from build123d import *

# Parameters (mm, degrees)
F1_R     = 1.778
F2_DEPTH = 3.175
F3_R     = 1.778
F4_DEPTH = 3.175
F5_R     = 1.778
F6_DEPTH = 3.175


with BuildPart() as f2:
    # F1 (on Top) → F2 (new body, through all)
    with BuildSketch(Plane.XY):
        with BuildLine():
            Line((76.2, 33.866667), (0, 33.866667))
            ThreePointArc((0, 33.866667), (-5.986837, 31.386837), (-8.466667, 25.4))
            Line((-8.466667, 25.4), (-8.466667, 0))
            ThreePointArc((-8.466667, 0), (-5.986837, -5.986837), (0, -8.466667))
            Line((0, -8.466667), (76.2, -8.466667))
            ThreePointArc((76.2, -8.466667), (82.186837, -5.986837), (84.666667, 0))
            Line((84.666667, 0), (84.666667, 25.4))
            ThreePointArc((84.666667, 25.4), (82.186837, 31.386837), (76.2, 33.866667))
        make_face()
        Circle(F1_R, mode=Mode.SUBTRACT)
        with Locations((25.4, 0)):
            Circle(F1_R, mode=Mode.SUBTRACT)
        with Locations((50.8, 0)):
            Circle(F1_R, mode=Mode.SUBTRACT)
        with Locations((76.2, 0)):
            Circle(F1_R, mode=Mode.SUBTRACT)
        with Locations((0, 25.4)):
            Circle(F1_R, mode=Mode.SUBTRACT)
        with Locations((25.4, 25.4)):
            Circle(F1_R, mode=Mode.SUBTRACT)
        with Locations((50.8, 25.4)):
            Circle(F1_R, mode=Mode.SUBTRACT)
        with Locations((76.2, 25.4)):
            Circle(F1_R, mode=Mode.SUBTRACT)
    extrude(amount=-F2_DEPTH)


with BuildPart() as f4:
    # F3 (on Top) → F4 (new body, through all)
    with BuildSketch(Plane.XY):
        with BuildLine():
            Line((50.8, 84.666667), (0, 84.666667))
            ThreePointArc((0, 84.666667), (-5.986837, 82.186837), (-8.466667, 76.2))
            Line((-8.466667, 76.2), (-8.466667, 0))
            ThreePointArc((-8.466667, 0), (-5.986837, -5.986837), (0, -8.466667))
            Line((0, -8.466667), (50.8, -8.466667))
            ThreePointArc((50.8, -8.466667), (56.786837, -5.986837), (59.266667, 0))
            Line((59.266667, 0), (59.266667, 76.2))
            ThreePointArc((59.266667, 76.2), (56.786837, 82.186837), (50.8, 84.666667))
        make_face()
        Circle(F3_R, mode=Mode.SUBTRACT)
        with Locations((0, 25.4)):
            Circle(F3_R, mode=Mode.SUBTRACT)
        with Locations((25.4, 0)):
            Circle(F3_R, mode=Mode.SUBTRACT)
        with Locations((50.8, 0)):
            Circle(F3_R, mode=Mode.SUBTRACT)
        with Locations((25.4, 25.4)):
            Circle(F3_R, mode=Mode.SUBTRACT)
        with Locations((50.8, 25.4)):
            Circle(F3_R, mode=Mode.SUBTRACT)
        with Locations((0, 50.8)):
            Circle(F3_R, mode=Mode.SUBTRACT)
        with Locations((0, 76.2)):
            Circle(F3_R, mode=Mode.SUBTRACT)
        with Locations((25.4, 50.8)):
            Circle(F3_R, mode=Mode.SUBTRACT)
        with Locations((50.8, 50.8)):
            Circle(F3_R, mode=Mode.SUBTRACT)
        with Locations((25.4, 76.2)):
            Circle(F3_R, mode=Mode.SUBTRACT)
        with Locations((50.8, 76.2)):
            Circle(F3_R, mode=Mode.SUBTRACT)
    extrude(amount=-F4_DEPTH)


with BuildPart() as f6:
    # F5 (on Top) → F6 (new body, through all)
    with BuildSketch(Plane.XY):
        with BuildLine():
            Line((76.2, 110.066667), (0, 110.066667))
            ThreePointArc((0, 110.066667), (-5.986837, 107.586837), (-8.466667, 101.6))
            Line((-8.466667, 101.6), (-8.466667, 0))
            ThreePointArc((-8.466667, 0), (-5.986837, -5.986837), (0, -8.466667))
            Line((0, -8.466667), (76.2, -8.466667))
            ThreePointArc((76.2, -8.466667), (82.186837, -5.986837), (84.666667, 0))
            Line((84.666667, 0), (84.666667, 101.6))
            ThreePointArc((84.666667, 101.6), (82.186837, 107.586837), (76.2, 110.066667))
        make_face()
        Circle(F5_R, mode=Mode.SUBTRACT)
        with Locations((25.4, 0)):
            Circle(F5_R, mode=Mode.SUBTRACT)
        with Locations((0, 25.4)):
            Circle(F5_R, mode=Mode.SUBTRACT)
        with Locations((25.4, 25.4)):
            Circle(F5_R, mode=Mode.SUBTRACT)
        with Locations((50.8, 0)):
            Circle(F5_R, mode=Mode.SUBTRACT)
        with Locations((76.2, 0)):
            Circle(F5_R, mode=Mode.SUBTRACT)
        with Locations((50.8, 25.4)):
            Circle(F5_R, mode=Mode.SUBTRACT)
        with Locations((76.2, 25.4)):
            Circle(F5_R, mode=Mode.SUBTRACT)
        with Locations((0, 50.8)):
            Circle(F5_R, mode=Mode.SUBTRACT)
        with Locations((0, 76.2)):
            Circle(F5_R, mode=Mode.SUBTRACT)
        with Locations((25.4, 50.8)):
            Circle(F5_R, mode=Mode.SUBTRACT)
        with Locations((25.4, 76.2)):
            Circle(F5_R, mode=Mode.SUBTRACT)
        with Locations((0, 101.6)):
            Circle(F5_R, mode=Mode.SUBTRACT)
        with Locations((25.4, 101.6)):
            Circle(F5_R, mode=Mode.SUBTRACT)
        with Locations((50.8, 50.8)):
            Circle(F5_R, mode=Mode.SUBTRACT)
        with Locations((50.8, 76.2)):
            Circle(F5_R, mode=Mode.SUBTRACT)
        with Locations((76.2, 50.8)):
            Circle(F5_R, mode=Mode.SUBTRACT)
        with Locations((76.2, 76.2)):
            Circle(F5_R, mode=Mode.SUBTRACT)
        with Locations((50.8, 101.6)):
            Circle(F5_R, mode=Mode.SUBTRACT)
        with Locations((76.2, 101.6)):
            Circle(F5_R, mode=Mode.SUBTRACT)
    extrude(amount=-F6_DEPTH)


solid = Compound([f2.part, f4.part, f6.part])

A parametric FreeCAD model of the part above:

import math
import FreeCAD as App
import Part
import Sketcher

V = App.Vector
Q = App.Units.Quantity

doc = App.newDocument("Part")
body = doc.addObject("PartDesign::Body", "Body")

# Sketch on XY plane
sketch1 = body.newObject("Sketcher::SketchObject", "Sketch")
sketch1.AttachmentSupport = (doc.getObject("XY_Plane"), [""])
sketch1.MapMode = "FlatFace"
sketch1.addGeometry([
    Part.LineSegment(V(76.2, 33.9, 0), V(0, 33.9, 0)),  # 0
    Part.ArcOfCircle(Part.Circle(V(0, 25.4, 0), V(0, 0, 1), 8.5), math.radians(90), math.radians(180)),  # 1
    Part.LineSegment(V(-8.5, 25.4, 0), V(-8.5, 0, 0)),  # 2
    Part.ArcOfCircle(Part.Circle(V(0, 0, 0), V(0, 0, 1), 8.5), math.radians(-180), math.radians(-90)),  # 3
    Part.LineSegment(V(0, -8.5, 0), V(76.2, -8.5, 0)),  # 4
    Part.ArcOfCircle(Part.Circle(V(76.2, 0, 0), V(0, 0, 1), 8.5), math.radians(-90), math.radians(0)),  # 5
    Part.LineSegment(V(84.7, 0, 0), V(84.7, 25.4, 0)),  # 6
    Part.ArcOfCircle(Part.Circle(V(76.2, 25.4, 0), V(0, 0, 1), 8.5), math.radians(0), math.radians(90)),  # 7
    Part.Circle(V(0, 0, 0), V(0, 0, 1), 1.8),  # 8
    Part.Circle(V(25.4, 0, 0), V(0, 0, 1), 1.8),  # 9
    Part.Circle(V(50.8, 0, 0), V(0, 0, 1), 1.8),  # 10
    Part.Circle(V(76.2, 0, 0), V(0, 0, 1), 1.8),  # 11
    Part.Circle(V(0, 25.4, 0), V(0, 0, 1), 1.8),  # 12
    Part.Circle(V(25.4, 25.4, 0), V(0, 0, 1), 1.8),  # 13
    Part.Circle(V(50.8, 25.4, 0), V(0, 0, 1), 1.8),  # 14
    Part.Circle(V(76.2, 25.4, 0), V(0, 0, 1), 1.8),  # 15
], False)
sketch1.addConstraint([
    Sketcher.Constraint("Tangent", 0, 2, 1, 1),
    Sketcher.Constraint("Tangent", 1, 2, 2, 1),
    Sketcher.Constraint("Tangent", 2, 2, 3, 1),
    Sketcher.Constraint("Tangent", 3, 2, 4, 1),
    Sketcher.Constraint("Tangent", 4, 2, 5, 1),
    Sketcher.Constraint("Tangent", 5, 2, 6, 1),
    Sketcher.Constraint("Tangent", 6, 2, 7, 1),
    Sketcher.Constraint("Tangent", 7, 2, 0, 1),
    Sketcher.Constraint("Horizontal", 0),
    Sketcher.Constraint("Vertical", 2),
    Sketcher.Constraint("Horizontal", 4),
    Sketcher.Constraint("Vertical", 6),
    Sketcher.Constraint("Coincident", 3, 3, -1, 1),
    Sketcher.Constraint("Coincident", 8, 3, -1, 1),
    Sketcher.Constraint("Coincident", 11, 3, 5, 3),
    Sketcher.Constraint("Coincident", 12, 3, 1, 3),
    Sketcher.Constraint("Coincident", 15, 3, 7, 3),
    Sketcher.Constraint("Equal", 1, 3),
    Sketcher.Constraint("Equal", 3, 5),
    Sketcher.Constraint("Equal", 5, 7),
    Sketcher.Constraint("Equal", 8, 9),
    Sketcher.Constraint("Equal", 9, 10),
    Sketcher.Constraint("Equal", 10, 11),
    Sketcher.Constraint("Equal", 11, 12),
    Sketcher.Constraint("Equal", 12, 13),
    Sketcher.Constraint("Equal", 13, 14),
    Sketcher.Constraint("Equal", 14, 15),
    Sketcher.Constraint("PointOnObject", 9, 3, -1),
    Sketcher.Constraint("PointOnObject", 10, 3, -1),
    Sketcher.Constraint("Horizontal", 12, 3, 13, 3),
    Sketcher.Constraint("Horizontal", 13, 3, 14, 3),
    Sketcher.Constraint("Vertical", 9, 3, 13, 3),
    Sketcher.Constraint("Vertical", 10, 3, 14, 3),
    Sketcher.Constraint("Diameter", 8, Q("0.14 in")),
    Sketcher.Constraint("DistanceX", 0, 2, 0, 1, Q("3 in")),
    Sketcher.Constraint("DistanceY", 2, 2, 2, 1, Q("1 in")),
    Sketcher.Constraint("DistanceX", -1, 1, 9, 3, Q("1 in")),
    Sketcher.Constraint("DistanceX", -1, 1, 10, 3, Q("2 in")),
    Sketcher.Constraint("Radius", 1, 8.466669),
])
pad1 = body.newObject("PartDesign::Pad", "Pad")
pad1.Profile = sketch1
pad1.Length = Q("0.125 in")
pad1.Reversed = True
body2 = doc.addObject("PartDesign::Body", "Body001")

# Sketch on XY plane
sketch2 = body2.newObject("Sketcher::SketchObject", "Sketch001")
sketch2.AttachmentSupport = (doc.getObject("XY_Plane001"), [""])
sketch2.MapMode = "FlatFace"
sketch2.addGeometry([
    Part.LineSegment(V(50.8, 84.7, 0), V(0, 84.7, 0)),  # 0
    Part.ArcOfCircle(Part.Circle(V(0, 76.2, 0), V(0, 0, 1), 8.5), math.radians(90), math.radians(180)),  # 1
    Part.LineSegment(V(-8.5, 76.2, 0), V(-8.5, 0, 0)),  # 2
    Part.ArcOfCircle(Part.Circle(V(0, 0, 0), V(0, 0, 1), 8.5), math.radians(-180), math.radians(-90)),  # 3
    Part.LineSegment(V(0, -8.5, 0), V(50.8, -8.5, 0)),  # 4
    Part.ArcOfCircle(Part.Circle(V(50.8, 0, 0), V(0, 0, 1), 8.5), math.radians(-90), math.radians(0)),  # 5
    Part.LineSegment(V(59.3, 0, 0), V(59.3, 76.2, 0)),  # 6
    Part.ArcOfCircle(Part.Circle(V(50.8, 76.2, 0), V(0, 0, 1), 8.5), math.radians(0), math.radians(90)),  # 7
    Part.Circle(V(0, 0, 0), V(0, 0, 1), 1.8),  # 8
    Part.Circle(V(25.4, 0, 0), V(0, 0, 1), 1.8),  # 9
    Part.Circle(V(0, 25.4, 0), V(0, 0, 1), 1.8),  # 10
    Part.Circle(V(25.4, 25.4, 0), V(0, 0, 1), 1.8),  # 11
    Part.Circle(V(50.8, 0, 0), V(0, 0, 1), 1.8),  # 12
    Part.Circle(V(50.8, 25.4, 0), V(0, 0, 1), 1.8),  # 13
    Part.Circle(V(0, 50.8, 0), V(0, 0, 1), 1.8),  # 14
    Part.Circle(V(25.4, 50.8, 0), V(0, 0, 1), 1.8),  # 15
    Part.Circle(V(0, 76.2, 0), V(0, 0, 1), 1.8),  # 16
    Part.Circle(V(25.4, 76.2, 0), V(0, 0, 1), 1.8),  # 17
    Part.Circle(V(50.8, 50.8, 0), V(0, 0, 1), 1.8),  # 18
    Part.Circle(V(50.8, 76.2, 0), V(0, 0, 1), 1.8),  # 19
], False)
sketch2.addConstraint([
    Sketcher.Constraint("Tangent", 0, 2, 1, 1),
    Sketcher.Constraint("Tangent", 1, 2, 2, 1),
    Sketcher.Constraint("Tangent", 2, 2, 3, 1),
    Sketcher.Constraint("Tangent", 3, 2, 4, 1),
    Sketcher.Constraint("Tangent", 4, 2, 5, 1),
    Sketcher.Constraint("Tangent", 5, 2, 6, 1),
    Sketcher.Constraint("Tangent", 6, 2, 7, 1),
    Sketcher.Constraint("Tangent", 7, 2, 0, 1),
    Sketcher.Constraint("Horizontal", 0),
    Sketcher.Constraint("Vertical", 2),
    Sketcher.Constraint("Horizontal", 4),
    Sketcher.Constraint("Vertical", 6),
    Sketcher.Constraint("Coincident", 3, 3, -1, 1),
    Sketcher.Constraint("Coincident", 8, 3, -1, 1),
    Sketcher.Constraint("Coincident", 12, 3, 5, 3),
    Sketcher.Constraint("Coincident", 16, 3, 1, 3),
    Sketcher.Constraint("Coincident", 19, 3, 7, 3),
    Sketcher.Constraint("Equal", 1, 3),
    Sketcher.Constraint("Equal", 3, 5),
    Sketcher.Constraint("Equal", 5, 7),
    Sketcher.Constraint("Equal", 8, 9),
    Sketcher.Constraint("Equal", 9, 10),
    Sketcher.Constraint("Equal", 10, 11),
    Sketcher.Constraint("Equal", 11, 12),
    Sketcher.Constraint("Equal", 12, 13),
    Sketcher.Constraint("Equal", 13, 14),
    Sketcher.Constraint("Equal", 14, 15),
    Sketcher.Constraint("Equal", 15, 16),
    Sketcher.Constraint("Equal", 16, 17),
    Sketcher.Constraint("Equal", 17, 18),
    Sketcher.Constraint("Equal", 18, 19),
    Sketcher.Constraint("PointOnObject", 9, 3, -1),
    Sketcher.Constraint("PointOnObject", 10, 3, -2),
    Sketcher.Constraint("PointOnObject", 14, 3, -2),
    Sketcher.Constraint("Horizontal", 10, 3, 11, 3),
    Sketcher.Constraint("Horizontal", 11, 3, 13, 3),
    Sketcher.Constraint("Horizontal", 14, 3, 15, 3),
    Sketcher.Constraint("Horizontal", 16, 3, 17, 3),
    Sketcher.Constraint("Horizontal", 15, 3, 18, 3),
    Sketcher.Constraint("Vertical", 9, 3, 11, 3),
    Sketcher.Constraint("Vertical", 12, 3, 13, 3),
    Sketcher.Constraint("Vertical", 11, 3, 15, 3),
    Sketcher.Constraint("Vertical", 15, 3, 17, 3),
    Sketcher.Constraint("Vertical", 13, 3, 18, 3),
    Sketcher.Constraint("Diameter", 8, Q("0.14 in")),
    Sketcher.Constraint("DistanceX", 0, 2, 0, 1, Q("2 in")),
    Sketcher.Constraint("DistanceY", 2, 2, 2, 1, Q("3 in")),
    Sketcher.Constraint("DistanceX", -1, 1, 9, 3, Q("1 in")),
    Sketcher.Constraint("DistanceY", -1, 1, 10, 3, Q("1 in")),
    Sketcher.Constraint("DistanceY", -1, 1, 14, 3, Q("2 in")),
    Sketcher.Constraint("Radius", 1, 8.466669),
])
pad2 = body2.newObject("PartDesign::Pad", "Pad001")
pad2.Profile = sketch2
pad2.Length = Q("0.125 in")
pad2.Reversed = True
body3 = doc.addObject("PartDesign::Body", "Body002")

# Sketch on XY plane
sketch3 = body3.newObject("Sketcher::SketchObject", "Sketch002")
sketch3.AttachmentSupport = (doc.getObject("XY_Plane002"), [""])
sketch3.MapMode = "FlatFace"
sketch3.addGeometry([
    Part.LineSegment(V(76.2, 110.1, 0), V(0, 110.1, 0)),  # 0
    Part.ArcOfCircle(Part.Circle(V(0, 101.6, 0), V(0, 0, 1), 8.5), math.radians(90), math.radians(180)),  # 1
    Part.LineSegment(V(-8.5, 101.6, 0), V(-8.5, 0, 0)),  # 2
    Part.ArcOfCircle(Part.Circle(V(0, 0, 0), V(0, 0, 1), 8.5), math.radians(-180), math.radians(-90)),  # 3
    Part.LineSegment(V(0, -8.5, 0), V(76.2, -8.5, 0)),  # 4
    Part.ArcOfCircle(Part.Circle(V(76.2, 0, 0), V(0, 0, 1), 8.5), math.radians(-90), math.radians(0)),  # 5
    Part.LineSegment(V(84.7, 0, 0), V(84.7, 101.6, 0)),  # 6
    Part.ArcOfCircle(Part.Circle(V(76.2, 101.6, 0), V(0, 0, 1), 8.5), math.radians(0), math.radians(90)),  # 7
    Part.Circle(V(0, 0, 0), V(0, 0, 1), 1.8),  # 8
    Part.Circle(V(25.4, 0, 0), V(0, 0, 1), 1.8),  # 9
    Part.Circle(V(0, 25.4, 0), V(0, 0, 1), 1.8),  # 10
    Part.Circle(V(25.4, 25.4, 0), V(0, 0, 1), 1.8),  # 11
    Part.Circle(V(50.8, 0, 0), V(0, 0, 1), 1.8),  # 12
    Part.Circle(V(76.2, 0, 0), V(0, 0, 1), 1.8),  # 13
    Part.Circle(V(50.8, 25.4, 0), V(0, 0, 1), 1.8),  # 14
    Part.Circle(V(76.2, 25.4, 0), V(0, 0, 1), 1.8),  # 15
    Part.Circle(V(0, 50.8, 0), V(0, 0, 1), 1.8),  # 16
    Part.Circle(V(0, 76.2, 0), V(0, 0, 1), 1.8),  # 17
    Part.Circle(V(25.4, 50.8, 0), V(0, 0, 1), 1.8),  # 18
    Part.Circle(V(25.4, 76.2, 0), V(0, 0, 1), 1.8),  # 19
    Part.Circle(V(0, 101.6, 0), V(0, 0, 1), 1.8),  # 20
    Part.Circle(V(25.4, 101.6, 0), V(0, 0, 1), 1.8),  # 21
    Part.Circle(V(50.8, 50.8, 0), V(0, 0, 1), 1.8),  # 22
    Part.Circle(V(50.8, 76.2, 0), V(0, 0, 1), 1.8),  # 23
    Part.Circle(V(76.2, 50.8, 0), V(0, 0, 1), 1.8),  # 24
    Part.Circle(V(76.2, 76.2, 0), V(0, 0, 1), 1.8),  # 25
    Part.Circle(V(50.8, 101.6, 0), V(0, 0, 1), 1.8),  # 26
    Part.Circle(V(76.2, 101.6, 0), V(0, 0, 1), 1.8),  # 27
], False)
sketch3.addConstraint([
    Sketcher.Constraint("Tangent", 0, 2, 1, 1),
    Sketcher.Constraint("Tangent", 1, 2, 2, 1),
    Sketcher.Constraint("Tangent", 2, 2, 3, 1),
    Sketcher.Constraint("Tangent", 3, 2, 4, 1),
    Sketcher.Constraint("Tangent", 4, 2, 5, 1),
    Sketcher.Constraint("Tangent", 5, 2, 6, 1),
    Sketcher.Constraint("Tangent", 6, 2, 7, 1),
    Sketcher.Constraint("Tangent", 7, 2, 0, 1),
    Sketcher.Constraint("Horizontal", 0),
    Sketcher.Constraint("Vertical", 2),
    Sketcher.Constraint("Horizontal", 4),
    Sketcher.Constraint("Vertical", 6),
    Sketcher.Constraint("Coincident", 3, 3, -1, 1),
    Sketcher.Constraint("Coincident", 8, 3, -1, 1),
    Sketcher.Constraint("Coincident", 13, 3, 5, 3),
    Sketcher.Constraint("Coincident", 20, 3, 1, 3),
    Sketcher.Constraint("Coincident", 27, 3, 7, 3),
    Sketcher.Constraint("Equal", 1, 3),
    Sketcher.Constraint("Equal", 3, 5),
    Sketcher.Constraint("Equal", 5, 7),
    Sketcher.Constraint("Equal", 8, 9),
    Sketcher.Constraint("Equal", 9, 10),
    Sketcher.Constraint("Equal", 10, 11),
    Sketcher.Constraint("Equal", 11, 12),
    Sketcher.Constraint("Equal", 12, 13),
    Sketcher.Constraint("Equal", 13, 14),
    Sketcher.Constraint("Equal", 14, 15),
    Sketcher.Constraint("Equal", 15, 16),
    Sketcher.Constraint("Equal", 16, 17),
    Sketcher.Constraint("Equal", 17, 18),
    Sketcher.Constraint("Equal", 18, 19),
    Sketcher.Constraint("Equal", 19, 20),
    Sketcher.Constraint("Equal", 20, 21),
    Sketcher.Constraint("Equal", 21, 22),
    Sketcher.Constraint("Equal", 22, 23),
    Sketcher.Constraint("Equal", 23, 24),
    Sketcher.Constraint("Equal", 24, 25),
    Sketcher.Constraint("Equal", 25, 26),
    Sketcher.Constraint("Equal", 26, 27),
    Sketcher.Constraint("PointOnObject", 9, 3, -1),
    Sketcher.Constraint("PointOnObject", 10, 3, -2),
    Sketcher.Constraint("PointOnObject", 12, 3, -1),
    Sketcher.Constraint("PointOnObject", 16, 3, -2),
    Sketcher.Constraint("PointOnObject", 17, 3, -2),
    Sketcher.Constraint("Horizontal", 10, 3, 11, 3),
    Sketcher.Constraint("Horizontal", 11, 3, 14, 3),
    Sketcher.Constraint("Horizontal", 14, 3, 15, 3),
    Sketcher.Constraint("Horizontal", 16, 3, 18, 3),
    Sketcher.Constraint("Horizontal", 17, 3, 19, 3),
    Sketcher.Constraint("Horizontal", 20, 3, 21, 3),
    Sketcher.Constraint("Horizontal", 18, 3, 22, 3),
    Sketcher.Constraint("Horizontal", 19, 3, 23, 3),
    Sketcher.Constraint("Horizontal", 22, 3, 24, 3),
    Sketcher.Constraint("Horizontal", 23, 3, 25, 3),
    Sketcher.Constraint("Horizontal", 21, 3, 26, 3),
    Sketcher.Constraint("Vertical", 9, 3, 11, 3),
    Sketcher.Constraint("Vertical", 12, 3, 14, 3),
    Sketcher.Constraint("Vertical", 13, 3, 15, 3),
    Sketcher.Constraint("Vertical", 11, 3, 18, 3),
    Sketcher.Constraint("Vertical", 18, 3, 19, 3),
    Sketcher.Constraint("Vertical", 19, 3, 21, 3),
    Sketcher.Constraint("Vertical", 14, 3, 22, 3),
    Sketcher.Constraint("Vertical", 22, 3, 23, 3),
    Sketcher.Constraint("Vertical", 15, 3, 24, 3),
    Sketcher.Constraint("Vertical", 24, 3, 25, 3),
    Sketcher.Constraint("Vertical", 23, 3, 26, 3),
    Sketcher.Constraint("Diameter", 8, Q("0.14 in")),
    Sketcher.Constraint("DistanceX", 0, 2, 0, 1, Q("3 in")),
    Sketcher.Constraint("DistanceY", 2, 2, 2, 1, Q("4 in")),
    Sketcher.Constraint("DistanceX", -1, 1, 9, 3, Q("1 in")),
    Sketcher.Constraint("DistanceY", -1, 1, 10, 3, Q("1 in")),
    Sketcher.Constraint("DistanceX", -1, 1, 12, 3, Q("2 in")),
    Sketcher.Constraint("DistanceY", -1, 1, 16, 3, Q("2 in")),
    Sketcher.Constraint("DistanceY", -1, 1, 17, 3, Q("3 in")),
    Sketcher.Constraint("Radius", 1, 8.466669),
])
pad3 = body3.newObject("PartDesign::Pad", "Pad002")
pad3.Profile = sketch3
pad3.Length = Q("0.125 in")
pad3.Reversed = True

doc.recompute()
